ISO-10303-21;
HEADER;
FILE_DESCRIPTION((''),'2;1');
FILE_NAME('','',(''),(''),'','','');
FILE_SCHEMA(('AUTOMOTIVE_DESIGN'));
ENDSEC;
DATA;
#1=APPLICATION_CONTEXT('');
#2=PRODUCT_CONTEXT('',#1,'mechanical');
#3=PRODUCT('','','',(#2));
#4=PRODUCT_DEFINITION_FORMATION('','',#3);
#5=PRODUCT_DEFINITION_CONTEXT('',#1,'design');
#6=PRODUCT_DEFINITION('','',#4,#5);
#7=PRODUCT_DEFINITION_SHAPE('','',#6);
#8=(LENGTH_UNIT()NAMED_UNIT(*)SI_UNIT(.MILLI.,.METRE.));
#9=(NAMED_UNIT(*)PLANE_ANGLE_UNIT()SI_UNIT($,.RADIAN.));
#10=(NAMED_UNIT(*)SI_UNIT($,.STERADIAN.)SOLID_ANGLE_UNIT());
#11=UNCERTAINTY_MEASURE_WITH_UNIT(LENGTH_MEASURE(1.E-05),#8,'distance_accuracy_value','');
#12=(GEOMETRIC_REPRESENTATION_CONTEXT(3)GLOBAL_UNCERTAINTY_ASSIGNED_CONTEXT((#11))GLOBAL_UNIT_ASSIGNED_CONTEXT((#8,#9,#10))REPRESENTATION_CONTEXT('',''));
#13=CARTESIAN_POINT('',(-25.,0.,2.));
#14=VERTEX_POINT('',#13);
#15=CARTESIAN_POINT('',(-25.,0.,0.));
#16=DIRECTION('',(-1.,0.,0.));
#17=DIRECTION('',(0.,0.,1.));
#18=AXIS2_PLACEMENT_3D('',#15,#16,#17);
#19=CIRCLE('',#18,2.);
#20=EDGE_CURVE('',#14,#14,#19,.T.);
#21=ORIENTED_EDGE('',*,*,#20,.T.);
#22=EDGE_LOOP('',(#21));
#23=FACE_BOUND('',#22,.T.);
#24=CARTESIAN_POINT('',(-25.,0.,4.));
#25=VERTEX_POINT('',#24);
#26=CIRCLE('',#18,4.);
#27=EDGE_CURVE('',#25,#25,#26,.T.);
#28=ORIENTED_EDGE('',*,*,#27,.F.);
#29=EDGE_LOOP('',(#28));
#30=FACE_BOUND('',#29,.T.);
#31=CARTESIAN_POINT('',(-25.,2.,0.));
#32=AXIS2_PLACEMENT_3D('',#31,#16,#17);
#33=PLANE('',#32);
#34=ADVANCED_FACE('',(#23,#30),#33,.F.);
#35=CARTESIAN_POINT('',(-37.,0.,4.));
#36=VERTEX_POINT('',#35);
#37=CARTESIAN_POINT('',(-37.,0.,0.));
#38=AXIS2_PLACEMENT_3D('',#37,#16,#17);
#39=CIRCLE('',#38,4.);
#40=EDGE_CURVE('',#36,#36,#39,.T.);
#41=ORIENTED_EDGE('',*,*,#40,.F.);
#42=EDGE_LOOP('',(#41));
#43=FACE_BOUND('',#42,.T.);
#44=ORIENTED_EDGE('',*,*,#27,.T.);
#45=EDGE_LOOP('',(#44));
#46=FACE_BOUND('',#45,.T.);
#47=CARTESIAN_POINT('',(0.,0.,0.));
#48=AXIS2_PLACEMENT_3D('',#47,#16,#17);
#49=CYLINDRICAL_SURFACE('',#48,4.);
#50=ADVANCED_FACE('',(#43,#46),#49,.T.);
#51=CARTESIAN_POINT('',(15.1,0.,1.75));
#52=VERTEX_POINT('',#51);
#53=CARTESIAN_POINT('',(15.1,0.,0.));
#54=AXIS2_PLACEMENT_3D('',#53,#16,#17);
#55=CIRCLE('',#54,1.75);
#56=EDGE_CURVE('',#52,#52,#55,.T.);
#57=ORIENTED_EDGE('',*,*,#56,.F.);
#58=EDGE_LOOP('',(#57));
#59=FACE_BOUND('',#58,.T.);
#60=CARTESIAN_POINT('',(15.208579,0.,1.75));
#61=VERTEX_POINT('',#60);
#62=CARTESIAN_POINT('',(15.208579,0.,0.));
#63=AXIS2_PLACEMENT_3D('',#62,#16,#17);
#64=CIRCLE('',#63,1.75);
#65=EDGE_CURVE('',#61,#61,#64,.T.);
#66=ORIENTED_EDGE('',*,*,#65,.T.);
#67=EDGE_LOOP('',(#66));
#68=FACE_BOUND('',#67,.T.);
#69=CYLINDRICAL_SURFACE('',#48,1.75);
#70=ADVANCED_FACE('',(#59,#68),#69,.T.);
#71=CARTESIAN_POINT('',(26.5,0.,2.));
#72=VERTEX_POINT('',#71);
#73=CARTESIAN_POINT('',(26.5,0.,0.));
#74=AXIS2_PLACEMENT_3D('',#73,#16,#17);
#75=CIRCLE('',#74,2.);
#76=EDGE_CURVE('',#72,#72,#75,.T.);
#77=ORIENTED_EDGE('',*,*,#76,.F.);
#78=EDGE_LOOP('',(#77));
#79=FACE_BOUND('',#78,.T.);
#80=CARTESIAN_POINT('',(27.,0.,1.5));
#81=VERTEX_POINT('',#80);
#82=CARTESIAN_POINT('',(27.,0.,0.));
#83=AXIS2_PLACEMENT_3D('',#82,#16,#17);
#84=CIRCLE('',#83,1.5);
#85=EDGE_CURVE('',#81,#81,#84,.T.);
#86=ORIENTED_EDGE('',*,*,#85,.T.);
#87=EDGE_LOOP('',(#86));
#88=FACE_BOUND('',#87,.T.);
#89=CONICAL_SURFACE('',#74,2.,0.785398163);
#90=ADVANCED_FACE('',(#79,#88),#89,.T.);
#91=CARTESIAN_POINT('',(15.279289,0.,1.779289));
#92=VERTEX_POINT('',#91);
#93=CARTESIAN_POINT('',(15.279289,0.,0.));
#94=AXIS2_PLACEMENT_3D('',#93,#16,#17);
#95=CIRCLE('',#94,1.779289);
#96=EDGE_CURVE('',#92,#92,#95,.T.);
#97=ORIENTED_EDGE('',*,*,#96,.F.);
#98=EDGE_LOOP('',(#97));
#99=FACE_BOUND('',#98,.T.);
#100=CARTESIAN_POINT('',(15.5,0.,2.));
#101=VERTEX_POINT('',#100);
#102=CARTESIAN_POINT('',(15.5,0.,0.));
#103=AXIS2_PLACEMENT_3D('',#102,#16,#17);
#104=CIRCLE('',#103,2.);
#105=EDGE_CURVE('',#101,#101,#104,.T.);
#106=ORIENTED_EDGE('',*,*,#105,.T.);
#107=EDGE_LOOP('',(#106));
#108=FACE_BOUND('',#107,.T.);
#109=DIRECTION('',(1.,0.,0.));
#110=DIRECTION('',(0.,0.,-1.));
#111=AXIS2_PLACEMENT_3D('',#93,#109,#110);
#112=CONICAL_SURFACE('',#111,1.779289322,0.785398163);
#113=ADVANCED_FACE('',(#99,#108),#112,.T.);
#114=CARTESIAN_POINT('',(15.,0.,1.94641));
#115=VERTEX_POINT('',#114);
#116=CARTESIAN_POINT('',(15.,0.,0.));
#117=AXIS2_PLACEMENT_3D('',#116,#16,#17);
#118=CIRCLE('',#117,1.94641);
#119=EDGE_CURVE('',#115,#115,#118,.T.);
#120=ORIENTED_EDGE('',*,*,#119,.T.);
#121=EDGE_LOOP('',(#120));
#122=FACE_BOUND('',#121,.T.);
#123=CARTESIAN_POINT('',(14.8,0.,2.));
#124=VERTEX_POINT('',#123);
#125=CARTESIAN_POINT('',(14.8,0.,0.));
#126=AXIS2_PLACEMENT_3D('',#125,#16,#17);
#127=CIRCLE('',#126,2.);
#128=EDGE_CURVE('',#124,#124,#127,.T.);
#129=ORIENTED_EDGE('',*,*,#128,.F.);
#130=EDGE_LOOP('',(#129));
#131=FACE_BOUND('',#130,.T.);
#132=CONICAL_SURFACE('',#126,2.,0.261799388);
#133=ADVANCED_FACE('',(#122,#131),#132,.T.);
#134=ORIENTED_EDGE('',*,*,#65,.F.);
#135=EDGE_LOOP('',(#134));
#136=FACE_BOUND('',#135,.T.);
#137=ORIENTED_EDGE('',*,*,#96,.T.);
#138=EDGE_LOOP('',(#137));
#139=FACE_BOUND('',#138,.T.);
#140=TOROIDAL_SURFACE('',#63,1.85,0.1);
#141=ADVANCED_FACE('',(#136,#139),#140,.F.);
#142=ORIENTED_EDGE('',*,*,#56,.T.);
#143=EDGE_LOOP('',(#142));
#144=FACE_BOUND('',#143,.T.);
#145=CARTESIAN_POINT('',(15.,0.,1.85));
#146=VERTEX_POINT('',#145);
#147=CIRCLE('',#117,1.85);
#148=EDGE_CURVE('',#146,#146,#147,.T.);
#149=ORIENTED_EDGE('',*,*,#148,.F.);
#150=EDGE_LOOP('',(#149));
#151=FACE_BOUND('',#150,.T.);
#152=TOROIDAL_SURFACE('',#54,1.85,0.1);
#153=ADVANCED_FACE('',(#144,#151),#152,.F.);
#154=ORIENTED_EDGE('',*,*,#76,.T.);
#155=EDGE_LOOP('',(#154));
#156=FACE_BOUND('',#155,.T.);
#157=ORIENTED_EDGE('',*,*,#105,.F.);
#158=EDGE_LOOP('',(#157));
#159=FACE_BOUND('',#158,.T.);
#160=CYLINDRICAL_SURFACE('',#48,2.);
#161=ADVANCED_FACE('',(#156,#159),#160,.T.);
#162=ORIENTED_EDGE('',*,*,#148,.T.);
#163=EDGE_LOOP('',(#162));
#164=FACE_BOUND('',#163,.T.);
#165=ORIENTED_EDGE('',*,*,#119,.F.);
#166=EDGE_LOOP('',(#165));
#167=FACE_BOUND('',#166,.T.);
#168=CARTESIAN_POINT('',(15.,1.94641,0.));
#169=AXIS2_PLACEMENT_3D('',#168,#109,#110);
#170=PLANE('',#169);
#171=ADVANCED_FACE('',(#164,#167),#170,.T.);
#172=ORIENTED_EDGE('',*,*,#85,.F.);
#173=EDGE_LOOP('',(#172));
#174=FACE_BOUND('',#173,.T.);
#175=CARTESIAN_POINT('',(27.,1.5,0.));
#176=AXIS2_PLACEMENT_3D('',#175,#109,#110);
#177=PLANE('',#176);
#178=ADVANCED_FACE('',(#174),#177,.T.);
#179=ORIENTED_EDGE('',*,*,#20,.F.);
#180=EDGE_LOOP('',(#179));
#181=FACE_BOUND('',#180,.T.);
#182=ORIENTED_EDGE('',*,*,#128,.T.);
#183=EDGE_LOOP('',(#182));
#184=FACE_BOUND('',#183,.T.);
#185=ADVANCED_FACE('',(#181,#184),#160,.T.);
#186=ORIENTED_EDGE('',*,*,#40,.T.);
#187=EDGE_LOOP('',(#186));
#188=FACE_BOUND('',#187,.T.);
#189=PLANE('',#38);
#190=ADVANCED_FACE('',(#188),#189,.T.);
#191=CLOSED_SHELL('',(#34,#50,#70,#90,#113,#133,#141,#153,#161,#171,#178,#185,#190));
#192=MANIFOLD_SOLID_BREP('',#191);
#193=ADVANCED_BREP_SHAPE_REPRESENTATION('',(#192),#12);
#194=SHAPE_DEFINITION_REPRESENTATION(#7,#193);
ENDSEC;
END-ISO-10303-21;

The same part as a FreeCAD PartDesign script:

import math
import FreeCAD as App
import Part
import Sketcher

V = App.Vector
Q = App.Units.Quantity

doc = App.newDocument("Part")
params = doc.addObject("Spreadsheet::Sheet", "Params")
for row, (alias, value) in enumerate([
    ("sketch1_radius", "0.1 mm"),
    ("sketch1_width", "2 mm"),
    ("sketch1_width2", "54 mm"),
    ("sketch1_width3", "11 mm"),
    ("sketch1_height", "4 mm"),
    ("revolution_angle", "360 deg"),
    ("sketch2_diameter", "8 mm"),
    ("pad1_length", "10 mm"),
], start=1):
    params.set(f"A{row}", alias)
    params.set(f"B{row}", "=" + value)
    params.setAlias(f"B{row}", alias)

body = doc.addObject("PartDesign::Body", "Body")

# Sketch on XY plane
sketch1 = body.newObject("Sketcher::SketchObject", "Sketch")
sketch1.AttachmentSupport = (doc.getObject("XY_Plane"), [""])
sketch1.MapMode = "FlatFace"
sketch1.addGeometry(Part.LineSegment(V(14.8, 2, 0), V(-25, 2, 0)), False)
sketch1.addGeometry(Part.LineSegment(V(-25, 2, 0), V(-25, 4, 0)), False)
sketch1.addGeometry(Part.LineSegment(V(-25, 4, 0), V(-27, 4, 0)), False)
sketch1.addGeometry(Part.LineSegment(V(-27, 4, 0), V(-27, 0, 0)), False)
sketch1.addGeometry(Part.LineSegment(V(-27, 0, 0), V(27, 0, 0)), False)
sketch1.addGeometry(Part.LineSegment(V(27, 0, 0), V(27, 1.5, 0)), False)
sketch1.addGeometry(Part.LineSegment(V(27, 1.5, 0), V(26.5, 2, 0)), False)
sketch1.addGeometry(Part.LineSegment(V(26.5, 2, 0), V(15.5, 2, 0)), False)
sketch1.addGeometry(Part.LineSegment(V(15.5, 2, 0), V(15.279289, 1.779289, 0)), False)
sketch1.addGeometry(Part.ArcOfCircle(Part.Circle(V(15.208579, 1.85, 0), V(0, 0, 1), 0.1), math.radians(-89.999999), math.radians(-45.000001)), False)
sketch1.addGeometry(Part.LineSegment(V(15.208579, 1.75, 0), V(15.1, 1.75, 0)), False)
sketch1.addGeometry(Part.ArcOfCircle(Part.Circle(V(15.1, 1.85, 0), V(0, 0, 1), 0.1), math.radians(180), math.radians(270)), False)
sketch1.addGeometry(Part.LineSegment(V(15, 1.85, 0), V(15, 1.94641, 0)), False)
sketch1.addGeometry(Part.LineSegment(V(15, 1.94641, 0), V(14.8, 2, 0)), False)
sketch1.addConstraint(Sketcher.Constraint("Coincident", 0, 2, 1, 1))
sketch1.addConstraint(Sketcher.Constraint("Coincident", 1, 2, 2, 1))
sketch1.addConstraint(Sketcher.Constraint("Coincident", 2, 2, 3, 1))
sketch1.addConstraint(Sketcher.Constraint("Coincident", 3, 2, 4, 1))
sketch1.addConstraint(Sketcher.Constraint("Coincident", 4, 2, 5, 1))
sketch1.addConstraint(Sketcher.Constraint("Coincident", 5, 2, 6, 1))
sketch1.addConstraint(Sketcher.Constraint("Coincident", 6, 2, 7, 1))
sketch1.addConstraint(Sketcher.Constraint("Coincident", 7, 2, 8, 1))
sketch1.addConstraint(Sketcher.Constraint("Tangent", 8, 2, 9, 2))
sketch1.addConstraint(Sketcher.Constraint("Tangent", 9, 1, 10, 1))
sketch1.addConstraint(Sketcher.Constraint("Tangent", 10, 2, 11, 2))
sketch1.addConstraint(Sketcher.Constraint("Tangent", 11, 1, 12, 1))
sketch1.addConstraint(Sketcher.Constraint("Coincident", 12, 2, 13, 1))
sketch1.addConstraint(Sketcher.Constraint("Coincident", 13, 2, 0, 1))
sketch1.addConstraint(Sketcher.Constraint("Horizontal", 0))
sketch1.addConstraint(Sketcher.Constraint("Vertical", 1))
sketch1.addConstraint(Sketcher.Constraint("Horizontal", 2))
sketch1.addConstraint(Sketcher.Constraint("Vertical", 3))
sketch1.addConstraint(Sketcher.Constraint("Horizontal", 4))
sketch1.addConstraint(Sketcher.Constraint("Vertical", 5))
sketch1.addConstraint(Sketcher.Constraint("Horizontal", 7))
sketch1.addConstraint(Sketcher.Constraint("Horizontal", 10))
sketch1.addConstraint(Sketcher.Constraint("Vertical", 12))
sketch1.addConstraint(Sketcher.Constraint("Equal", 9, 11))
sketch1.addConstraint(Sketcher.Constraint("Symmetric", 3, 2, 4, 2, -1, 1))
sketch1.addConstraint(Sketcher.Constraint("Perpendicular", 6, 8))
sketch1.addConstraint(Sketcher.Constraint("Horizontal", 0, 2, 6, 2))
sketch1.addConstraint(Sketcher.Constraint("Equal", 2, 1))
sketch1.addConstraint(Sketcher.Constraint("Radius", 9, Q("0.1 mm")))
sketch1.addConstraint(Sketcher.Constraint("DistanceX", 2, 2, 2, 1, Q("2 mm")))
sketch1.addConstraint(Sketcher.Constraint("DistanceX", 4, 1, 4, 2, Q("54 mm")))
sketch1.addConstraint(Sketcher.Constraint("DistanceX", 7, 2, 7, 1, Q("11 mm")))
sketch1.addConstraint(Sketcher.Constraint("DistanceY", 3, 2, 3, 1, Q("4 mm")))
sketch1.addConstraint(Sketcher.Constraint("Angle", 6, Q("135 deg")))
sketch1.addConstraint(Sketcher.Constraint("Angle", 13, Q("165 deg")))
sketch1.addConstraint(Sketcher.Constraint("DistanceX", 0, 2, 0, 1, Q("39.8 mm")))
sketch1.addConstraint(Sketcher.Constraint("DistanceY", 5, 1, 5, 2, Q("1.5 mm")))
sketch1.addConstraint(Sketcher.Constraint("DistanceX", -1, 1, 11, 1, Q("15 mm")))
sketch1.addConstraint(Sketcher.Constraint("DistanceY", -1, 1, 9, 3, Q("1.85 mm")))
sketch1.setExpression("Constraints[28]", "Params.sketch1_radius")
sketch1.setExpression("Constraints[29]", "Params.sketch1_width")
sketch1.setExpression("Constraints[30]", "Params.sketch1_width2")
sketch1.setExpression("Constraints[31]", "Params.sketch1_width3")
sketch1.setExpression("Constraints[32]", "Params.sketch1_height")
revolution = body.newObject("PartDesign::Revolution", "Revolution")
revolution.Profile = sketch1
revolution.ReferenceAxis = (sketch1, ["H_Axis"])
revolution.setExpression("Angle", "Params.revolution_angle")

# Sketch on YZ plane
sketch2 = body.newObject("Sketcher::SketchObject", "Sketch001")
sketch2.AttachmentSupport = (doc.getObject("YZ_Plane"), [""])
sketch2.MapMode = "FlatFace"
sketch2.AttachmentOffset = App.Placement(V(0, 0, -27), App.Rotation())
sketch2.addGeometry(Part.Circle(V(0, 0, 0), V(0, 0, 1), 4), False)
sketch2.addConstraint(Sketcher.Constraint("Coincident", 0, 3, -1, 1))
sketch2.addConstraint(Sketcher.Constraint("Diameter", 0, Q("8 mm")))
sketch2.setExpression("Constraints[1]", "Params.sketch2_diameter")
pad1 = body.newObject("PartDesign::Pad", "Pad")
pad1.Profile = sketch2
pad1.setExpression("Length", "Params.pad1_length")
pad1.Reversed = True

doc.recompute()
